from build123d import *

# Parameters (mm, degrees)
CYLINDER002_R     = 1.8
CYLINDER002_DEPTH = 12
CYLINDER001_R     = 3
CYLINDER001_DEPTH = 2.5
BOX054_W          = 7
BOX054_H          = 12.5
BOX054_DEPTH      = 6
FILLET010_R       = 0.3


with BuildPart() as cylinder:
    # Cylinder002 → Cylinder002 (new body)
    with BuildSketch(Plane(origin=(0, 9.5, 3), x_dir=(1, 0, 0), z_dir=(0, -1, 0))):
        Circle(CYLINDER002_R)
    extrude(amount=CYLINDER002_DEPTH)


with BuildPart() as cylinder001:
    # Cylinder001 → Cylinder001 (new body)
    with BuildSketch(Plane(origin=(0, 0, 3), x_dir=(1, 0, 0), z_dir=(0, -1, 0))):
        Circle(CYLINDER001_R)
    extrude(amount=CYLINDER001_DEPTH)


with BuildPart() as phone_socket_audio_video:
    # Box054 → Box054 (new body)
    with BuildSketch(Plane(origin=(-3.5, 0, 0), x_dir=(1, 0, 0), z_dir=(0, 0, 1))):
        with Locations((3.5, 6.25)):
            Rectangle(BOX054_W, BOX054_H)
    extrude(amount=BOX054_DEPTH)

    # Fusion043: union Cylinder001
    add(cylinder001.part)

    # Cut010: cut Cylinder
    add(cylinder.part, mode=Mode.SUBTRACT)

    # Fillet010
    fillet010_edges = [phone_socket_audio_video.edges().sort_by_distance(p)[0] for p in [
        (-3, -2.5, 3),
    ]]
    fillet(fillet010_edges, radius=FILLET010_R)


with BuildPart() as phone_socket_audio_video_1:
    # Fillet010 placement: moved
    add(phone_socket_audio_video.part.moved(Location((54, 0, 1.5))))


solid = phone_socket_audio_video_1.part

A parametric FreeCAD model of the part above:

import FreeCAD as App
import Part
import Sketcher

V = App.Vector
Q = App.Units.Quantity


def edges_at(feature, points):
    """Names of the edges that pass closest to the given points."""
    edges = feature.Shape.Edges
    near = lambda p: min(range(len(edges)), key=lambda i: edges[i].distToShape(Part.Vertex(*p))[0])
    return sorted({f"Edge{near(p) + 1}" for p in points})

doc = App.newDocument("Part")
body = doc.addObject("PartDesign::Body", "Body")

# Sketch on XZ plane
sketch1 = doc.addObject("Sketcher::SketchObject", "Sketch")
body.addObject(sketch1)
sketch1.AttachmentSupport = (doc.XZ_Plane, [""])
sketch1.MapMode = "FlatFace"
sketch1.AttachmentOffset = App.Placement(V(0, 0, -9.5), App.Rotation())
sketch1.addGeometry(Part.Circle(V(0, 3, 0), V(0, 0, 1), 1.8), False)
sketch1.addConstraint(Sketcher.Constraint("PointOnObject", 0, 3, -2))
sketch1.addConstraint(Sketcher.Constraint("Diameter", 0, Q("3.6 mm")))
sketch1.addConstraint(Sketcher.Constraint("DistanceY", -1, 1, 0, 3, Q("3 mm")))
pad1 = doc.addObject("PartDesign::Pad", "Pad")
body.addObject(pad1)
pad1.Profile = sketch1
pad1.Length = 12
body2 = doc.addObject("PartDesign::Body", "Body001")

# Sketch on XZ plane
sketch2 = doc.addObject("Sketcher::SketchObject", "Sketch001")
body2.addObject(sketch2)
sketch2.AttachmentSupport = (doc.getObject("XZ_Plane001"), [""])
sketch2.MapMode = "FlatFace"
sketch2.addGeometry(Part.Circle(V(0, 3, 0), V(0, 0, 1), 3), False)
sketch2.addConstraint(Sketcher.Constraint("PointOnObject", 0, 3, -2))
sketch2.addConstraint(Sketcher.Constraint("Diameter", 0, Q("6 mm")))
sketch2.addConstraint(Sketcher.Constraint("DistanceY", -1, 1, 0, 3, Q("3 mm")))
pad2 = doc.addObject("PartDesign::Pad", "Pad001")
body2.addObject(pad2)
pad2.Profile = sketch2
pad2.Length = 2.5
body3 = doc.addObject("PartDesign::Body", "Body002")

# Sketch on XY plane
sketch3 = doc.addObject("Sketcher::SketchObject", "Sketch002")
body3.addObject(sketch3)
sketch3.AttachmentSupport = (doc.getObject("XY_Plane002"), [""])
sketch3.MapMode = "FlatFace"
sketch3.addGeometry(Part.LineSegment(V(-3.5, 12.5, 0), V(-3.5, 0, 0)), False)
sketch3.addGeometry(Part.LineSegment(V(-3.5, 0, 0), V(3.5, 0, 0)), False)
sketch3.addGeometry(Part.LineSegment(V(3.5, 0, 0), V(3.5, 12.5, 0)), False)
sketch3.addGeometry(Part.LineSegment(V(3.5, 12.5, 0), V(-3.5, 12.5, 0)), False)
sketch3.addConstraint(Sketcher.Constraint("Coincident", 0, 2, 1, 1))
sketch3.addConstraint(Sketcher.Constraint("Coincident", 1, 2, 2, 1))
sketch3.addConstraint(Sketcher.Constraint("Coincident", 2, 2, 3, 1))
sketch3.addConstraint(Sketcher.Constraint("Coincident", 3, 2, 0, 1))
sketch3.addConstraint(Sketcher.Constraint("Vertical", 0))
sketch3.addConstraint(Sketcher.Constraint("Horizontal", 1))
sketch3.addConstraint(Sketcher.Constraint("Vertical", 2))
sketch3.addConstraint(Sketcher.Constraint("Horizontal", 3))
sketch3.addConstraint(Sketcher.Constraint("Symmetric", 0, 2, 1, 2, -1, 1))
sketch3.addConstraint(Sketcher.Constraint("DistanceX", 1, 1, 1, 2, Q("7 mm")))
sketch3.addConstraint(Sketcher.Constraint("DistanceY", 0, 2, 0, 1, Q("12.5 mm")))
pad3 = doc.addObject("PartDesign::Pad", "Pad002")
body3.addObject(pad3)
pad3.Profile = sketch3
pad3.Length = 6
doc.recompute()

boolean = doc.addObject("PartDesign::Boolean", "Boolean")
body3.addObject(boolean)
boolean.Type = "Fuse"
boolean.addObjects([body2])
doc.recompute()

boolean2 = doc.addObject("PartDesign::Boolean", "Boolean001")
body3.addObject(boolean2)
boolean2.Type = "Cut"
boolean2.addObjects([body])
doc.recompute()

fillet = doc.addObject("PartDesign::Fillet", "Fillet")
body3.addObject(fillet)
fillet.Base = (boolean2, edges_at(boolean2, [(-3, -2.5, 3)]))
fillet.Radius = 0.3
body4 = doc.addObject("PartDesign::Body", "Body003")
doc.recompute()

body3.Placement = App.Placement(V(54, 0, 1.5), App.Rotation(V(0, 0, 1), 0))
boolean3 = doc.addObject("PartDesign::Boolean", "Boolean002")
body4.addObject(boolean3)
boolean3.Type = "Fuse"
boolean3.addObjects([body3])

doc.recompute()
